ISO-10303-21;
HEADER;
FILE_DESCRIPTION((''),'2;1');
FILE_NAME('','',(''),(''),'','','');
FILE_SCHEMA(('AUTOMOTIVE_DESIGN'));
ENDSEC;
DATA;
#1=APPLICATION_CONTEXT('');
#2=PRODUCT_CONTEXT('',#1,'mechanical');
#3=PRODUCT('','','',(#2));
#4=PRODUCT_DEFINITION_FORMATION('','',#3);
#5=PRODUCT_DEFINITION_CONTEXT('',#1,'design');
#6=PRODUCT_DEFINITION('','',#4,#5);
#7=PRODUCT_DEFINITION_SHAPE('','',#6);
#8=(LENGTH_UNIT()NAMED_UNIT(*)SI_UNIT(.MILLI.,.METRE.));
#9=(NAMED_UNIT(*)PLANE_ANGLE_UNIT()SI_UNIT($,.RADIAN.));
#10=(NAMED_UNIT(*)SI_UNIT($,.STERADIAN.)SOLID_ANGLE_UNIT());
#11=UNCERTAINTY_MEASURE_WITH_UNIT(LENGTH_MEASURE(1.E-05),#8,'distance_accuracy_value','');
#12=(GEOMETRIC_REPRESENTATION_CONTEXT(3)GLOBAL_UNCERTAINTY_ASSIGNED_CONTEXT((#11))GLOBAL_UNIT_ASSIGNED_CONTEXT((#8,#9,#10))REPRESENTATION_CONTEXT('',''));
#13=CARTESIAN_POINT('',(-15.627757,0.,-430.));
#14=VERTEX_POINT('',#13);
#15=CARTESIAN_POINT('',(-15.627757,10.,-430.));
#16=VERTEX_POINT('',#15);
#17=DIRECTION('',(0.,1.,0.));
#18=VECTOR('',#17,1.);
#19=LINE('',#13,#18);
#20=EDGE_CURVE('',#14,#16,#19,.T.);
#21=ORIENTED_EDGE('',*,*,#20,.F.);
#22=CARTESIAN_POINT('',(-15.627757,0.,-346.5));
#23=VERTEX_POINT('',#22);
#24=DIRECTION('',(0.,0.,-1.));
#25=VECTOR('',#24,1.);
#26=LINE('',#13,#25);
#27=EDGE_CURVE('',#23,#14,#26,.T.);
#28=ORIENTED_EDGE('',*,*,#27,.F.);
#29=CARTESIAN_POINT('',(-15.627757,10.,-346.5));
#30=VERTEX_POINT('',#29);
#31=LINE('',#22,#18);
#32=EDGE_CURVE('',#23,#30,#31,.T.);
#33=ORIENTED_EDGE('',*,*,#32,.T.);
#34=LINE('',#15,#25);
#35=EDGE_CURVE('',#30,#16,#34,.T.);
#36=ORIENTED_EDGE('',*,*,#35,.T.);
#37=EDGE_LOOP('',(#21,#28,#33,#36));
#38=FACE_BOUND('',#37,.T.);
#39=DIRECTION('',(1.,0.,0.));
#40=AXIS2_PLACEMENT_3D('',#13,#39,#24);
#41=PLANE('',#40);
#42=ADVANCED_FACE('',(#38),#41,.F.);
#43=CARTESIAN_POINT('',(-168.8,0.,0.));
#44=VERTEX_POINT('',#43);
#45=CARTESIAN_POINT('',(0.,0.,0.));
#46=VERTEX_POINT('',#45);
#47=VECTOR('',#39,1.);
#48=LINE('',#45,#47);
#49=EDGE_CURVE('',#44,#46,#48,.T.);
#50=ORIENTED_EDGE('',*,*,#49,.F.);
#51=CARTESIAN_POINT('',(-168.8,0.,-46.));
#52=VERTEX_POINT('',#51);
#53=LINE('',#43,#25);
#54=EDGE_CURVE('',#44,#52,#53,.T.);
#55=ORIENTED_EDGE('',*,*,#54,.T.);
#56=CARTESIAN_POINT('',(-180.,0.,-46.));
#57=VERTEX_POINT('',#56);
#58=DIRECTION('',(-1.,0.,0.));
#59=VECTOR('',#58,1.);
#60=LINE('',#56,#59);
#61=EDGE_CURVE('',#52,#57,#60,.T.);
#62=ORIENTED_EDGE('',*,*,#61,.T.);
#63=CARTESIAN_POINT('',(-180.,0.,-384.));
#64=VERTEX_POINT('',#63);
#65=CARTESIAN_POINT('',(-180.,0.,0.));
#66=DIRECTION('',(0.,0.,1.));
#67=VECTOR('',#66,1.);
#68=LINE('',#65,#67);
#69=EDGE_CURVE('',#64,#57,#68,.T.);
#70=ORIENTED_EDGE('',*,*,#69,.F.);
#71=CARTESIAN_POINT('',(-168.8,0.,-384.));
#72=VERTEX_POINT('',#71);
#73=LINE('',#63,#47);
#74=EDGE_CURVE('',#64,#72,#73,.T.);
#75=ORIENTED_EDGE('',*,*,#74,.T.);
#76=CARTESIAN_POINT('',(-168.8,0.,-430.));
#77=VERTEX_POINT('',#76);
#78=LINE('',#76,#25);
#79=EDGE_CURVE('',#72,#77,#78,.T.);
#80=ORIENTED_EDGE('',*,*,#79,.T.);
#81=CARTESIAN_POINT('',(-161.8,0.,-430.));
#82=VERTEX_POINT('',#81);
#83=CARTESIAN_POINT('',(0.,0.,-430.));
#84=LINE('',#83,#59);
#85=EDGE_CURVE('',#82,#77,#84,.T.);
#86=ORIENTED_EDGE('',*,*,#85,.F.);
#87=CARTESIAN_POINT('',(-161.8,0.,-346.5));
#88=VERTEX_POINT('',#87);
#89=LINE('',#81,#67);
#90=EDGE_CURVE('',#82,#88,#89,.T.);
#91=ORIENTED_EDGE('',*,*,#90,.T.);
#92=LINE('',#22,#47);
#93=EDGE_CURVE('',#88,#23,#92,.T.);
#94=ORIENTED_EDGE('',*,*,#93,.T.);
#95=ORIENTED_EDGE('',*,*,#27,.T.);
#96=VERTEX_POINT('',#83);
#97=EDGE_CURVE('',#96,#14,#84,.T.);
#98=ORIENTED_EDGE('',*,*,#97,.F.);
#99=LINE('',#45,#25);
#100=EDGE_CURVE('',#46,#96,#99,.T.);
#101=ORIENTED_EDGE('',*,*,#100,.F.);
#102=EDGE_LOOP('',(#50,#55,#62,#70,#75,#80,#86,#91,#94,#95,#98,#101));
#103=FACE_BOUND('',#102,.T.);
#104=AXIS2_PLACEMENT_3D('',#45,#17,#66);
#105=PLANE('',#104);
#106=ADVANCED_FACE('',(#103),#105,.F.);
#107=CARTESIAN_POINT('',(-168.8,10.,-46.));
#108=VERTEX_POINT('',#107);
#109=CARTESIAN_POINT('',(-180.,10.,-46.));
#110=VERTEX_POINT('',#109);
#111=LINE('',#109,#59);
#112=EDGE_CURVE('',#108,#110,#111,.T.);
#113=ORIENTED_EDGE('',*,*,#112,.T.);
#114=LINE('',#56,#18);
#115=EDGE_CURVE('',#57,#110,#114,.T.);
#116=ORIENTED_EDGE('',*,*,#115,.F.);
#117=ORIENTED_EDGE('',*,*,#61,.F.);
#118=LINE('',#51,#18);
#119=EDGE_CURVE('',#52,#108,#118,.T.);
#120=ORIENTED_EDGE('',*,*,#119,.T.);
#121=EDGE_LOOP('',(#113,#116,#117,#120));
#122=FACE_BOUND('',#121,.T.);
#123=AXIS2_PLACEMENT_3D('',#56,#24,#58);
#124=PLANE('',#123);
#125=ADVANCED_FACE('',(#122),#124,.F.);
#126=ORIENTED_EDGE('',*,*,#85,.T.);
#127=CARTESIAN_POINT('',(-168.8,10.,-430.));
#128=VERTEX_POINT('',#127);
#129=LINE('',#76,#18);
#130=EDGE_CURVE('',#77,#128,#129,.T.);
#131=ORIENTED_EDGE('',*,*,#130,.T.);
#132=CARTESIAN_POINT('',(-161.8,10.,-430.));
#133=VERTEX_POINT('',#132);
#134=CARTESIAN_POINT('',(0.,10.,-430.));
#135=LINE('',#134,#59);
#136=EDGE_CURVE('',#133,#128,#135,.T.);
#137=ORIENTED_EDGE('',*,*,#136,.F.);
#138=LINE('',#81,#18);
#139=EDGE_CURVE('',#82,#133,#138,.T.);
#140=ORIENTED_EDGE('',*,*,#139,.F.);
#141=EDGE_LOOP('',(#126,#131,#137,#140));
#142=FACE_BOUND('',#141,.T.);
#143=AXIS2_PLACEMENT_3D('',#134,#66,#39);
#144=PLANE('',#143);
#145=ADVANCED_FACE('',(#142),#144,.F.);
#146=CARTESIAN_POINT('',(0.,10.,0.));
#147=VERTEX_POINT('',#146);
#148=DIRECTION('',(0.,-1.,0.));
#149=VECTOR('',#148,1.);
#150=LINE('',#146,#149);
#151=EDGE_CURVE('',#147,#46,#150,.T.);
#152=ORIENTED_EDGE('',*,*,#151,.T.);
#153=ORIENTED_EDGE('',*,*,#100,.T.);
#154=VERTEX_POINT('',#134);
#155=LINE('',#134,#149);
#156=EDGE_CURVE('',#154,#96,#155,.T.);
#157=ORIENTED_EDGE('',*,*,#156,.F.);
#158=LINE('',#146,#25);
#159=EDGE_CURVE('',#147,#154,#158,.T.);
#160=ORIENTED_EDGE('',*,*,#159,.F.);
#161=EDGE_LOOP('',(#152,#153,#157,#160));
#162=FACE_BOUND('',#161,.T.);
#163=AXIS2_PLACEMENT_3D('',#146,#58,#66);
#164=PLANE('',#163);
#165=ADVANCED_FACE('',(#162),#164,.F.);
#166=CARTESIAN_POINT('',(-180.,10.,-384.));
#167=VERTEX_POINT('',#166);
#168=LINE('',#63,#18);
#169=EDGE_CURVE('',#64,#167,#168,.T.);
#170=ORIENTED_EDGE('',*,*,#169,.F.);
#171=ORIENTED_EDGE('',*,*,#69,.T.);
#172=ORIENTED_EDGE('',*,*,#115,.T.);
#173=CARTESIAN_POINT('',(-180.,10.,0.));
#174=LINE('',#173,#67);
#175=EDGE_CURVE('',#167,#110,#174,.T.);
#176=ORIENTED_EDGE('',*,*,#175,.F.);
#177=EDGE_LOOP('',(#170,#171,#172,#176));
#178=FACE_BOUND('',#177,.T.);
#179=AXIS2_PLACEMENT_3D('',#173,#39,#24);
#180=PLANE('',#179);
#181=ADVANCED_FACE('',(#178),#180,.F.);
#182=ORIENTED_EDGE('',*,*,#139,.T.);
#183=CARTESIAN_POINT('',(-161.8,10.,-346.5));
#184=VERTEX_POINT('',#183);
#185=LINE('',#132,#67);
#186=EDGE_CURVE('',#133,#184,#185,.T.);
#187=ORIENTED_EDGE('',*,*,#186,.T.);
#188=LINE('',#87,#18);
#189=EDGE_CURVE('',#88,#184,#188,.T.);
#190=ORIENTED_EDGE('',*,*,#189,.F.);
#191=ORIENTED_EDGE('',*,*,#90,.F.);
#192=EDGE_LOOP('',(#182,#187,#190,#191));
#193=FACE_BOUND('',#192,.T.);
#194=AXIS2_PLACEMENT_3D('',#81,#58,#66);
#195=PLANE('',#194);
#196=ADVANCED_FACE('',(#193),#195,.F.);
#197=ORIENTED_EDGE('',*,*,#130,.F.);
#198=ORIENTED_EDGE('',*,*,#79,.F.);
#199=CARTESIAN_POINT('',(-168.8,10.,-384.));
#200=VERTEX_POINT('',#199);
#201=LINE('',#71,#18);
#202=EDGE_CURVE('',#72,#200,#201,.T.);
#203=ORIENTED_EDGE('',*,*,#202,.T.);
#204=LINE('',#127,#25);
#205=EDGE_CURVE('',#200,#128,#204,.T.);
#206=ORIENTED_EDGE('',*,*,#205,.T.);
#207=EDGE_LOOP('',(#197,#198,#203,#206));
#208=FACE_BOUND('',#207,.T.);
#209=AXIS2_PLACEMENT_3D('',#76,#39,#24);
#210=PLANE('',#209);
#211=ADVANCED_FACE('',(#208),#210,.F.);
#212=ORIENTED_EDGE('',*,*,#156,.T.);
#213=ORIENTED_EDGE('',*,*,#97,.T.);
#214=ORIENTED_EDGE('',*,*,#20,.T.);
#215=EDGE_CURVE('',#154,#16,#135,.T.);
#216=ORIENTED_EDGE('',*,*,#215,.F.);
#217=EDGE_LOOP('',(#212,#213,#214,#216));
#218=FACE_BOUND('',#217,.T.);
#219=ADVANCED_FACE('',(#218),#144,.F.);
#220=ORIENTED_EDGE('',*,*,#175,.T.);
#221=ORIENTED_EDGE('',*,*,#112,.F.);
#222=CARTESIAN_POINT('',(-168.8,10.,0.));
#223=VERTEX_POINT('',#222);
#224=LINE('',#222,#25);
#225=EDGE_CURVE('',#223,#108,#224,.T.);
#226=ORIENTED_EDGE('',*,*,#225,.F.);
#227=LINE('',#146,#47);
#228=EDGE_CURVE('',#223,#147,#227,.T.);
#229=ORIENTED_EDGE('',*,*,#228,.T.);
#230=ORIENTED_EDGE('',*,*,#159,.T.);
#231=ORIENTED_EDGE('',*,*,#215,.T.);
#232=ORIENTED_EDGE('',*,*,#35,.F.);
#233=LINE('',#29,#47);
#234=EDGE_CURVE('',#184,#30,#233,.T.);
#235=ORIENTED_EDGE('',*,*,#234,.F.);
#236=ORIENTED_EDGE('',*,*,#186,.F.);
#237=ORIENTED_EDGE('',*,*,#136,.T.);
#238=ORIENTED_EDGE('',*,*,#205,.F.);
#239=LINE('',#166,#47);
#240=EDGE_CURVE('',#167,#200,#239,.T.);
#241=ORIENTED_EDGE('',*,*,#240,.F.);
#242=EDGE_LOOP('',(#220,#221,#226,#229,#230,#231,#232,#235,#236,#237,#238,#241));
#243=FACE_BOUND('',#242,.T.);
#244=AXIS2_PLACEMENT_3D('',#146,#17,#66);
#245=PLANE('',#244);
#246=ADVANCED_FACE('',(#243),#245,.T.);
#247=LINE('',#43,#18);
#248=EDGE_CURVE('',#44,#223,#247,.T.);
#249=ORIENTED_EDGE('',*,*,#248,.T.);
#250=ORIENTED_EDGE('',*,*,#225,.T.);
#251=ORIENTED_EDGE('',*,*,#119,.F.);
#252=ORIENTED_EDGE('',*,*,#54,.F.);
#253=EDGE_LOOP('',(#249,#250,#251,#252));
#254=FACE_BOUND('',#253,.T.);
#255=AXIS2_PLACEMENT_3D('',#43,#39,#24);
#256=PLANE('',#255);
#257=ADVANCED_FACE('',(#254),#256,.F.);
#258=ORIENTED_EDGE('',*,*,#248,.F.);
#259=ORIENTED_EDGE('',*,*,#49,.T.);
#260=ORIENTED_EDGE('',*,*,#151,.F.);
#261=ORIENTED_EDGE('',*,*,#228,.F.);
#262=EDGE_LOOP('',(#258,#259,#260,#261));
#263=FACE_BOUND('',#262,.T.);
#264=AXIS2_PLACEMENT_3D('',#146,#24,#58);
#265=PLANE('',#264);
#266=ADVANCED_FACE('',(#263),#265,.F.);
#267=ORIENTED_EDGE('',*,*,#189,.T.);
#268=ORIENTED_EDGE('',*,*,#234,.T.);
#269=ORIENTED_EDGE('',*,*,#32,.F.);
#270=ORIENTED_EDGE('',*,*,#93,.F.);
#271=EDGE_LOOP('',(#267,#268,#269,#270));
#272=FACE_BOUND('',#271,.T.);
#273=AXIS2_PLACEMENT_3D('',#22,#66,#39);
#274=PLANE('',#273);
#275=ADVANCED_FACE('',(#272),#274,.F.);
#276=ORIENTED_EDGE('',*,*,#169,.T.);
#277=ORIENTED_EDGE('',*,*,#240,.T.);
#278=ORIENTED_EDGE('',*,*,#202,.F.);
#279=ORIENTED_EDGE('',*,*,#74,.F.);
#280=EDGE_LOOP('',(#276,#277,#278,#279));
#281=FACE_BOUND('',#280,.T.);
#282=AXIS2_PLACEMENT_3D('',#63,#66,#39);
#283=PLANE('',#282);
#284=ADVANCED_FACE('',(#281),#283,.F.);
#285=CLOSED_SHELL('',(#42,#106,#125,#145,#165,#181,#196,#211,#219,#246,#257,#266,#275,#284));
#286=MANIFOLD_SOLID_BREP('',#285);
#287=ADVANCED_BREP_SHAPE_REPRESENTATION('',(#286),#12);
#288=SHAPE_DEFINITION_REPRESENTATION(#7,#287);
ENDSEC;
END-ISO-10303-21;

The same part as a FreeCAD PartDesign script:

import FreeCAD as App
import Part
import Sketcher

V = App.Vector
Q = App.Units.Quantity

doc = App.newDocument("Part")
body = doc.addObject("PartDesign::Body", "Body")

# Sketch on XZ plane
sketch1 = body.newObject("Sketcher::SketchObject", "Sketch")
sketch1.AttachmentSupport = (doc.getObject("XZ_Plane"), [""])
sketch1.MapMode = "FlatFace"
sketch1.addGeometry([
    Part.LineSegment(V(-180, -430, 0), V(-180, 0, 0)),
    Part.LineSegment(V(-180, 0, 0), V(0, 0, 0)),
    Part.LineSegment(V(0, 0, 0), V(0, -430, 0)),
    Part.LineSegment(V(0, -430, 0), V(-180, -430, 0)),
], False)
sketch1.addConstraint([
    Sketcher.Constraint("Coincident", 0, 2, 1, 1),
    Sketcher.Constraint("Coincident", 1, 2, 2, 1),
    Sketcher.Constraint("Coincident", 2, 2, 3, 1),
    Sketcher.Constraint("Coincident", 3, 2, 0, 1),
    Sketcher.Constraint("Vertical", 0),
    Sketcher.Constraint("Horizontal", 1),
    Sketcher.Constraint("Vertical", 2),
    Sketcher.Constraint("Horizontal", 3),
    Sketcher.Constraint("Coincident", 1, 2, -1, 1),
    Sketcher.Constraint("DistanceX", 1, 1, 1, 2, Q("180 mm")),
    Sketcher.Constraint("DistanceY", 0, 1, 0, 2, Q("430 mm")),
])
pad1 = body.newObject("PartDesign::Pad", "Pad")
pad1.Profile = sketch1
pad1.Length = 10
pad1.Reversed = True

# Sketch on XZ plane
sketch2 = body.newObject("Sketcher::SketchObject", "Sketch001")
sketch2.AttachmentSupport = (doc.getObject("XZ_Plane"), [""])
sketch2.MapMode = "FlatFace"
sketch2.AttachmentOffset = App.Placement(V(0, 0, -10), App.Rotation())
sketch2.addGeometry([
    Part.LineSegment(V(-162, -430, 0), V(-162, -346, 0)),
    Part.LineSegment(V(-162, -346, 0), V(-16, -346, 0)),
    Part.LineSegment(V(-16, -346, 0), V(-16, -430, 0)),
    Part.LineSegment(V(-16, -430, 0), V(-162, -430, 0)),
], False)
sketch2.addConstraint([
    Sketcher.Constraint("Coincident", 0, 2, 1, 1),
    Sketcher.Constraint("Coincident", 1, 2, 2, 1),
    Sketcher.Constraint("Coincident", 2, 2, 3, 1),
    Sketcher.Constraint("Coincident", 3, 2, 0, 1),
    Sketcher.Constraint("Vertical", 0),
    Sketcher.Constraint("Horizontal", 1),
    Sketcher.Constraint("Vertical", 2),
    Sketcher.Constraint("Horizontal", 3),
    Sketcher.Constraint("DistanceY", 0, 1, 0, 2, Q("83.5 mm")),
    Sketcher.Constraint("DistanceY", 2, 2, -1, 1, Q("430 mm")),
    Sketcher.Constraint("DistanceX", 0, 2, -1, 1, Q("161.8 mm")),
    Sketcher.Constraint("DistanceX", 1, 1, 1, 2, Q("146.172243 mm")),
])
pocket1 = body.newObject("PartDesign::Pocket", "Pocket")
pocket1.Profile = sketch2
pocket1.Length = 10
pocket1.Reversed = True

# Sketch on XZ plane
sketch3 = body.newObject("Sketcher::SketchObject", "Sketch002")
sketch3.AttachmentSupport = (doc.getObject("XZ_Plane"), [""])
sketch3.MapMode = "FlatFace"
sketch3.AttachmentOffset = App.Placement(V(0, 0, -10), App.Rotation())
sketch3.addGeometry([
    Part.LineSegment(V(-180, -430, 0), V(-180, -384, 0)),  # 0
    Part.LineSegment(V(-180, -384, 0), V(-169, -384, 0)),  # 1
    Part.LineSegment(V(-169, -384, 0), V(-169, -430, 0)),  # 2
    Part.LineSegment(V(-169, -430, 0), V(-180, -430, 0)),  # 3
    Part.LineSegment(V(-180, -46, 0), V(-180, 0, 0)),  # 4
    Part.LineSegment(V(-180, 0, 0), V(-169, 0, 0)),  # 5
    Part.LineSegment(V(-169, 0, 0), V(-169, -46, 0)),  # 6
    Part.LineSegment(V(-169, -46, 0), V(-180, -46, 0)),  # 7
], False)
sketch3.addConstraint([
    Sketcher.Constraint("Coincident", 0, 2, 1, 1),
    Sketcher.Constraint("Coincident", 1, 2, 2, 1),
    Sketcher.Constraint("Coincident", 2, 2, 3, 1),
    Sketcher.Constraint("Coincident", 3, 2, 0, 1),
    Sketcher.Constraint("Coincident", 4, 2, 5, 1),
    Sketcher.Constraint("Coincident", 5, 2, 6, 1),
    Sketcher.Constraint("Coincident", 6, 2, 7, 1),
    Sketcher.Constraint("Coincident", 7, 2, 4, 1),
    Sketcher.Constraint("Vertical", 0),
    Sketcher.Constraint("Horizontal", 1),
    Sketcher.Constraint("Vertical", 2),
    Sketcher.Constraint("Horizontal", 3),
    Sketcher.Constraint("Vertical", 4),
    Sketcher.Constraint("Horizontal", 5),
    Sketcher.Constraint("Vertical", 6),
    Sketcher.Constraint("Horizontal", 7),
    Sketcher.Constraint("PointOnObject", 4, 2, -1),
    Sketcher.Constraint("Vertical", 3, 2, 4, 2),
    Sketcher.Constraint("Vertical", 2, 2, 5, 2),
    Sketcher.Constraint("Equal", 2, 4),
    Sketcher.Constraint("DistanceY", 0, 1, 0, 2, Q("46 mm")),
    Sketcher.Constraint("DistanceX", 1, 1, 1, 2, Q("11.2 mm")),
    Sketcher.Constraint("DistanceX", 0, 2, -1, 1, Q("180 mm")),
    Sketcher.Constraint("DistanceY", 0, 2, -1, 1, Q("384 mm")),
])
pocket2 = body.newObject("PartDesign::Pocket", "Pocket001")
pocket2.Profile = sketch3
pocket2.Length = 10
pocket2.Reversed = True

doc.recompute()
